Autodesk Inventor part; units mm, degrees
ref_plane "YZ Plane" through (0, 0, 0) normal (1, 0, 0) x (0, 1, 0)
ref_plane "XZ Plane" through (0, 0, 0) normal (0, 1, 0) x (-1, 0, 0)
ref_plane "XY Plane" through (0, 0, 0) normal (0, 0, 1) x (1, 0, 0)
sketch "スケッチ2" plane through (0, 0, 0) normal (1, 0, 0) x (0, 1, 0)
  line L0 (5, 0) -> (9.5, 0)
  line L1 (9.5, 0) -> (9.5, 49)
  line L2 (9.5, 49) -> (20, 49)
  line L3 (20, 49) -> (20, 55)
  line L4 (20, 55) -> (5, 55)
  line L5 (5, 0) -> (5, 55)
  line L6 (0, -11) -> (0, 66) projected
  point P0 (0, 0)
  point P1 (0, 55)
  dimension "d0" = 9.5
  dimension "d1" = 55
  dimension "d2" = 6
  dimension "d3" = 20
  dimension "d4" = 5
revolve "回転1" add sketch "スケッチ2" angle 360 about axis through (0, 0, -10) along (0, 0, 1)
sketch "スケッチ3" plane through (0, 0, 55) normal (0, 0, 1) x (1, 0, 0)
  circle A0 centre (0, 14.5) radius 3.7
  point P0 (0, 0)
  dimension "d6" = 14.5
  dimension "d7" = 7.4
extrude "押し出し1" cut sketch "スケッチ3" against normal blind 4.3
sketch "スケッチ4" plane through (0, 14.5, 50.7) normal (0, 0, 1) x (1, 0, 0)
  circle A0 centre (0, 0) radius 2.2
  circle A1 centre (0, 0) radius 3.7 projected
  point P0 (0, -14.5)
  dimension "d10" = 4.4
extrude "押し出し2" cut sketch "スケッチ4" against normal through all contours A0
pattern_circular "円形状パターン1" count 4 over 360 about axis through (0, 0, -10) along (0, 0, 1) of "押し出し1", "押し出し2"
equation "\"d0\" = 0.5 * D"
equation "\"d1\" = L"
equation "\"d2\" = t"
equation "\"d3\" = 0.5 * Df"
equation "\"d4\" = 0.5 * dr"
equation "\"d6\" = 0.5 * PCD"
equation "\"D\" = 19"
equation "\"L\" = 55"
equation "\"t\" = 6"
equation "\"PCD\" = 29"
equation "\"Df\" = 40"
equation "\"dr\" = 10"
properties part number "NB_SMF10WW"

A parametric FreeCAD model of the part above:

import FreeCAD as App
import Part
import Sketcher
Q = App.Units.Quantity

doc = App.newDocument("Part")
body = doc.addObject("PartDesign::Body", "Body")

sketch1 = body.newObject("Sketcher::SketchObject", "Sketch")
sketch1.AttachmentSupport = (doc.getObject("YZ_Plane"), [""])
sketch1.MapMode = "FlatFace"
sketch1.addGeometry([
    Part.LineSegment(App.Vector(5, 55, 0), App.Vector(5, 0, 0)),
    Part.LineSegment(App.Vector(5, 0, 0), App.Vector(9.5, 0, 0)),
    Part.LineSegment(App.Vector(9.5, 0, 0), App.Vector(9.5, 49, 0)),
    Part.LineSegment(App.Vector(9.5, 49, 0), App.Vector(20, 49, 0)),
    Part.LineSegment(App.Vector(20, 49, 0), App.Vector(20, 55, 0)),
    Part.LineSegment(App.Vector(20, 55, 0), App.Vector(5, 55, 0)),
], False)
sketch1.addConstraint([
    Sketcher.Constraint("Coincident", 0, 2, 1, 1),
    Sketcher.Constraint("Coincident", 1, 2, 2, 1),
    Sketcher.Constraint("Coincident", 2, 2, 3, 1),
    Sketcher.Constraint("Coincident", 3, 2, 4, 1),
    Sketcher.Constraint("Coincident", 4, 2, 5, 1),
    Sketcher.Constraint("Coincident", 5, 2, 0, 1),
    Sketcher.Constraint("Vertical", 0),
    Sketcher.Constraint("Horizontal", 1),
    Sketcher.Constraint("Vertical", 2),
    Sketcher.Constraint("Horizontal", 3),
    Sketcher.Constraint("Vertical", 4),
    Sketcher.Constraint("Horizontal", 5),
    Sketcher.Constraint("PointOnObject", 0, 2, -1),
    Sketcher.Constraint("DistanceY", 0, 2, 0, 1, Q("55 mm")),
    Sketcher.Constraint("DistanceY", 4, 1, 4, 2, Q("6 mm")),
    Sketcher.Constraint("DistanceX", -1, 1, 0, 2, Q("5 mm")),
    Sketcher.Constraint("DistanceX", -1, 1, 3, 2, Q("20 mm")),
    Sketcher.Constraint("DistanceX", -1, 1, 1, 2, Q("9.5 mm")),
])
revolution = body.newObject("PartDesign::Revolution", "Revolution")
revolution.Profile = sketch1
revolution.ReferenceAxis = (sketch1, ["V_Axis"])
revolution.Angle = 360

sketch2 = body.newObject("Sketcher::SketchObject", "Sketch001")
sketch2.AttachmentSupport = (doc.getObject("XY_Plane"), [""])
sketch2.MapMode = "FlatFace"
sketch2.AttachmentOffset = App.Placement(App.Vector(0, 0, 55), App.Rotation())
sketch2.addGeometry(Part.Circle(App.Vector(0, 14.5, 0), App.Vector(0, 0, 1), 3.7), False)
sketch2.addConstraint([
    Sketcher.Constraint("PointOnObject", 0, 3, -2),
    Sketcher.Constraint("Diameter", 0, Q("7.4 mm")),
    Sketcher.Constraint("DistanceY", -1, 1, 0, 3, Q("14.5 mm")),
])
pocket1 = body.newObject("PartDesign::Pocket", "Pocket")
pocket1.Profile = sketch2
pocket1.Length = 4.3

sketch3 = body.newObject("Sketcher::SketchObject", "Sketch002")
sketch3.AttachmentSupport = (doc.getObject("XY_Plane"), [""])
sketch3.MapMode = "FlatFace"
sketch3.AttachmentOffset = App.Placement(App.Vector(0, 0, 50.7), App.Rotation())
sketch3.addGeometry(Part.Circle(App.Vector(0, 14.5, 0), App.Vector(0, 0, 1), 2.2), False)
sketch3.addConstraint([
    Sketcher.Constraint("PointOnObject", 0, 3, -2),
    Sketcher.Constraint("Diameter", 0, Q("4.4 mm")),
    Sketcher.Constraint("DistanceY", -1, 1, 0, 3, Q("14.5 mm")),
])
pocket2 = body.newObject("PartDesign::Pocket", "Pocket001")
pocket2.Profile = sketch3
pocket2.Type = "ThroughAll"
doc.recompute()

polarpattern = body.newObject("PartDesign::PolarPattern", "PolarPattern")
polarpattern.Originals = [pocket1, pocket2]
polarpattern.Axis = (doc.getObject("Z_Axis"), [""])
polarpattern.Angle = 360
polarpattern.Occurrences = 4
body.Tip = polarpattern

doc.recompute()
